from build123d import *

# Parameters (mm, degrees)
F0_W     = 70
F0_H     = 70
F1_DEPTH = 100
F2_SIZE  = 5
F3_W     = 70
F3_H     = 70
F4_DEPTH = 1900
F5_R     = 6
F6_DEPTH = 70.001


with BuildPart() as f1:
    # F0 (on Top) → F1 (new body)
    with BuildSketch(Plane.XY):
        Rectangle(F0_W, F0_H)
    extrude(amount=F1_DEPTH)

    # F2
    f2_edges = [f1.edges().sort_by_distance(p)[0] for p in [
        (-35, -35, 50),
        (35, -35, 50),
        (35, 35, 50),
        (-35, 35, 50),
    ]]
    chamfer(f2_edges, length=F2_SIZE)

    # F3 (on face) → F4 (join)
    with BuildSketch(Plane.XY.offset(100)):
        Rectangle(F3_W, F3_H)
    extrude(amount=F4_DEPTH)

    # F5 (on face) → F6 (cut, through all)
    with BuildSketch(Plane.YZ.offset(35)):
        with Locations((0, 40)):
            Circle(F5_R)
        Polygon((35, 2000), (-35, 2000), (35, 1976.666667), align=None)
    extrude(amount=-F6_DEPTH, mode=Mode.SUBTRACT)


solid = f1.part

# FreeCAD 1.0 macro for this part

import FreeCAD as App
import Part
import Sketcher

V = App.Vector
Q = App.Units.Quantity


def edges_at(feature, points):
    """Names of the edges that pass closest to the given points."""
    edges = feature.Shape.Edges
    near = lambda p: min(range(len(edges)), key=lambda i: edges[i].distToShape(Part.Vertex(*p))[0])
    return sorted({f"Edge{near(p) + 1}" for p in points})

doc = App.newDocument("Part")
body = doc.addObject("PartDesign::Body", "Body")

# Sketch on XY plane
sketch1 = body.newObject("Sketcher::SketchObject", "Sketch")
sketch1.AttachmentSupport = (doc.getObject("XY_Plane"), [""])
sketch1.MapMode = "FlatFace"
sketch1.addGeometry([
    Part.LineSegment(V(-35, 35, 0), V(-35, -35, 0)),
    Part.LineSegment(V(-35, -35, 0), V(35, -35, 0)),
    Part.LineSegment(V(35, -35, 0), V(35, 35, 0)),
    Part.LineSegment(V(35, 35, 0), V(-35, 35, 0)),
], False)
sketch1.addConstraint([
    Sketcher.Constraint("Coincident", 0, 2, 1, 1),
    Sketcher.Constraint("Coincident", 1, 2, 2, 1),
    Sketcher.Constraint("Coincident", 2, 2, 3, 1),
    Sketcher.Constraint("Coincident", 3, 2, 0, 1),
    Sketcher.Constraint("Vertical", 0),
    Sketcher.Constraint("Horizontal", 1),
    Sketcher.Constraint("Vertical", 2),
    Sketcher.Constraint("Horizontal", 3),
    Sketcher.Constraint("Symmetric", 0, 2, 2, 2, -1, 1),
    Sketcher.Constraint("Equal", 3, 0),
    Sketcher.Constraint("DistanceX", 1, 1, 1, 2, Q("70 mm")),
])
pad1 = body.newObject("PartDesign::Pad", "Pad")
pad1.Profile = sketch1
pad1.Length = 100
doc.recompute()

chamfer = body.newObject("PartDesign::Chamfer", "Chamfer")
chamfer.Base = (pad1, edges_at(pad1, [
    (-35, -35, 50),
    (35, -35, 50),
    (35, 35, 50),
    (-35, 35, 50),
]))
chamfer.Size = 5

# Sketch on XY plane
sketch2 = body.newObject("Sketcher::SketchObject", "Sketch001")
sketch2.AttachmentSupport = (doc.getObject("XY_Plane"), [""])
sketch2.MapMode = "FlatFace"
sketch2.AttachmentOffset = App.Placement(V(0, 0, 100), App.Rotation())
sketch2.addGeometry([
    Part.LineSegment(V(-35, 35, 0), V(-35, -35, 0)),
    Part.LineSegment(V(-35, -35, 0), V(35, -35, 0)),
    Part.LineSegment(V(35, -35, 0), V(35, 35, 0)),
    Part.LineSegment(V(35, 35, 0), V(-35, 35, 0)),
], False)
sketch2.addConstraint([
    Sketcher.Constraint("Coincident", 0, 2, 1, 1),
    Sketcher.Constraint("Coincident", 1, 2, 2, 1),
    Sketcher.Constraint("Coincident", 2, 2, 3, 1),
    Sketcher.Constraint("Coincident", 3, 2, 0, 1),
    Sketcher.Constraint("Vertical", 0),
    Sketcher.Constraint("Horizontal", 1),
    Sketcher.Constraint("Vertical", 2),
    Sketcher.Constraint("Horizontal", 3),
    Sketcher.Constraint("Symmetric", 0, 2, 2, 2, -1, 1),
    Sketcher.Constraint("Equal", 3, 0),
    Sketcher.Constraint("DistanceX", 1, 1, 1, 2, Q("70 mm")),
])
pad2 = body.newObject("PartDesign::Pad", "Pad001")
pad2.Profile = sketch2
pad2.Length = 1900

# Sketch on YZ plane
sketch3 = body.newObject("Sketcher::SketchObject", "Sketch002")
sketch3.AttachmentSupport = (doc.getObject("YZ_Plane"), [""])
sketch3.MapMode = "FlatFace"
sketch3.AttachmentOffset = App.Placement(V(0, 0, 35), App.Rotation())
sketch3.addGeometry([
    Part.Circle(V(0, 40, 0), V(0, 0, 1), 6),
    Part.LineSegment(V(35, 2000, 0), V(-35, 2000, 0)),
    Part.LineSegment(V(-35, 2000, 0), V(35, 1977, 0)),
    Part.LineSegment(V(35, 1977, 0), V(35, 2000, 0)),
], False)
sketch3.addConstraint([
    Sketcher.Constraint("Coincident", 1, 2, 2, 1),
    Sketcher.Constraint("Coincident", 2, 2, 3, 1),
    Sketcher.Constraint("Coincident", 3, 2, 1, 1),
    Sketcher.Constraint("Horizontal", 1),
    Sketcher.Constraint("Vertical", 3),
    Sketcher.Constraint("PointOnObject", 0, 3, -2),
    Sketcher.Constraint("Diameter", 0, Q("12 mm")),
    Sketcher.Constraint("DistanceX", 1, 2, 1, 1, Q("70 mm")),
    Sketcher.Constraint("DistanceY", -1, 1, 0, 3, Q("40 mm")),
    Sketcher.Constraint("DistanceX", 1, 2, -1, 1, Q("35 mm")),
    Sketcher.Constraint("DistanceY", -1, 1, 1, 2, Q("2000 mm")),
    Sketcher.Constraint("Distance", 2, Q("73.786479 mm")),
])
pocket1 = body.newObject("PartDesign::Pocket", "Pocket")
pocket1.Profile = sketch3
pocket1.Type = "ThroughAll"

doc.recompute()
